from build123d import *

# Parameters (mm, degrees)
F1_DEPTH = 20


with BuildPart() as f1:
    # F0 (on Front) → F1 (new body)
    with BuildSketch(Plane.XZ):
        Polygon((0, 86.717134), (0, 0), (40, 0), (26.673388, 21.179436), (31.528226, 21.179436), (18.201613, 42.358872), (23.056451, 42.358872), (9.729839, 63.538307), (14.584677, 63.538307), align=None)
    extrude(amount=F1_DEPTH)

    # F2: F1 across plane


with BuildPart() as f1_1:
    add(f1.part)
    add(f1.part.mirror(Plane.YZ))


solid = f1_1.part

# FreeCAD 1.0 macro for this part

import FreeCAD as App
import Part
import Sketcher


def add_polygon(sketch, points):
    """Adds a closed chain of lines whose ends are joined by coincident constraints."""
    first, n = sketch.GeometryCount, len(points)
    for a, b in zip(points, points[1:] + points[:1]):
        sketch.addGeometry(Part.LineSegment(App.Vector(*a, 0), App.Vector(*b, 0)), False)
    for i in range(n):
        sketch.addConstraint(Sketcher.Constraint("Coincident", first + i, 2, first + (i + 1) % n, 1))

doc = App.newDocument("Part")
body = doc.addObject("PartDesign::Body", "Body")

# Sketch on XZ plane
sketch1 = body.newObject("Sketcher::SketchObject", "Sketch")
sketch1.AttachmentSupport = (doc.getObject("XZ_Plane"), [""])
sketch1.MapMode = "FlatFace"
add_polygon(sketch1, [(0, 86.717134), (0, 0), (40, 0), (26.673388, 21.179436), (31.528226, 21.179436), (18.201613, 42.358872), (23.056451, 42.358872), (9.729839, 63.538307), (14.584677, 63.538307)])  # lines 0-8
sketch1.addConstraint([
    Sketcher.Constraint("Vertical", 0),
    Sketcher.Constraint("Horizontal", 1),
    Sketcher.Constraint("Horizontal", 3),
    Sketcher.Constraint("Horizontal", 5),
    Sketcher.Constraint("Horizontal", 7),
    Sketcher.Constraint("Coincident", 0, 2, -1, 1),
    Sketcher.Constraint("Parallel", 2, 4),
    Sketcher.Constraint("Parallel", 4, 6),
    Sketcher.Constraint("Parallel", 6, 8),
    Sketcher.Constraint("Equal", 3, 5),
    Sketcher.Constraint("Equal", 5, 7),
    Sketcher.Constraint("Equal", 2, 4),
    Sketcher.Constraint("Equal", 4, 6),
    Sketcher.Constraint("DistanceX", 1, 1, 1, 2, 40.0),
    Sketcher.Constraint("DistanceX", 3, 1, 3, 2, 4.854838),
    Sketcher.Constraint("DistanceY", 2, 2, 8, 2, 65.537698),
    Sketcher.Constraint("Distance", 2, 25.023331),
])
pad1 = body.newObject("PartDesign::Pad", "Pad")
pad1.Profile = sketch1
pad1.Length = 20
body2 = doc.addObject("PartDesign::Body", "Body001")
doc.recompute()

body2.BaseFeature = body
doc.recompute()

mirroring = doc.addObject("Part::Mirroring", "Mirroring")
mirroring.Source = body
mirroring.Base = App.Vector(0, 0, 0)
mirroring.Normal = App.Vector(1, 0, 0)
body3 = doc.addObject("PartDesign::Body", "Body002")
body3.BaseFeature = mirroring
boolean = body2.newObject("PartDesign::Boolean", "Boolean")
boolean.Type = "Fuse"
boolean.addObjects([body3])
doc.recompute()
mirroring.Visibility = False

doc.recompute()
